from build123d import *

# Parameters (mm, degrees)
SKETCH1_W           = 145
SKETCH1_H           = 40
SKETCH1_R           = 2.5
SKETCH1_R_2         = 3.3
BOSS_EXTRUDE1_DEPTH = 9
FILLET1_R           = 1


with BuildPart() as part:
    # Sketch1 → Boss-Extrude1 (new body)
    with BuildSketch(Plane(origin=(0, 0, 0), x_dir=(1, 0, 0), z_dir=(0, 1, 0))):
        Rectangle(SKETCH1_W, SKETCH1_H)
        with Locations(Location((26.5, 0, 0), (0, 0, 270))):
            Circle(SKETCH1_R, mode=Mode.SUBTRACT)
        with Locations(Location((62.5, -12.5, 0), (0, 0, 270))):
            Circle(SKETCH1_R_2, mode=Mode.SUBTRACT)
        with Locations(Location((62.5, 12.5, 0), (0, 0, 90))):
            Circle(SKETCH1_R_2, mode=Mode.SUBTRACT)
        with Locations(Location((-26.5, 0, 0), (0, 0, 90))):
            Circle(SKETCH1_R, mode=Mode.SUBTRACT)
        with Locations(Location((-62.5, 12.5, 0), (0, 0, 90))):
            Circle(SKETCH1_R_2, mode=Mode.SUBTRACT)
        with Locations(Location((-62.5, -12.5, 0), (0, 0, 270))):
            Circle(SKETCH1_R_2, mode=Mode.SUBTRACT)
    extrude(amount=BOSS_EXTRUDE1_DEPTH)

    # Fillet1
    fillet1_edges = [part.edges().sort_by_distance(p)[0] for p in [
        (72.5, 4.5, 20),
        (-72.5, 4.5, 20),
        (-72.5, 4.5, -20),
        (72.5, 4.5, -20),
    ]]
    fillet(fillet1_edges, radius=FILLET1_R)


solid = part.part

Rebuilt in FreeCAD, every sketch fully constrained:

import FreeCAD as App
import Part
import Sketcher
from FreeCAD import Vector
Q = App.Units.Quantity


def edges_at(feature, points):
    """Names of the edges that pass closest to the given points."""
    edges = feature.Shape.Edges
    near = lambda p: min(range(len(edges)), key=lambda i: edges[i].distToShape(Part.Vertex(*p))[0])
    return sorted({f"Edge{near(p) + 1}" for p in points})


def add_polygon(sketch, points):
    """Adds a closed chain of lines whose ends are joined by coincident constraints."""
    first, n = sketch.GeometryCount, len(points)
    for a, b in zip(points, points[1:] + points[:1]):
        sketch.addGeometry(Part.LineSegment(App.Vector(*a, 0), App.Vector(*b, 0)), False)
    for i in range(n):
        sketch.addConstraint(Sketcher.Constraint("Coincident", first + i, 2, first + (i + 1) % n, 1))

doc = App.newDocument("Part")
params = doc.addObject("Spreadsheet::Sheet", "Params")
for row, (alias, value) in enumerate([
    ("sketch1_diameter", "5 mm"),
    ("sketch1_diameter2", "6.6 mm"),
    ("sketch1_width", "145 mm"),
    ("sketch1_height", "40 mm"),
    ("pad1_length", "9 mm"),
    ("fillet_radius", "1 mm"),
], start=1):
    params.set(f"A{row}", alias)
    params.set(f"B{row}", "=" + value)
    params.setAlias(f"B{row}", alias)

body = doc.addObject("PartDesign::Body", "Body")

# Sketch on XZ plane
sketch1 = body.newObject("Sketcher::SketchObject", "Sketch")
sketch1.AttachmentSupport = (doc.getObject("XZ_Plane"), [""])
sketch1.MapMode = "FlatFace"
add_polygon(sketch1, [(-72.5, -20), (-72.5, 20), (72.5, 20), (72.5, -20)])  # lines 0-3
sketch1.addGeometry(Part.Circle(Vector(-62.5, 12.5, 0), Vector(0, 0, 1), 3.3), False)  # 4
sketch1.addGeometry(Part.Circle(Vector(-26.5, 0, 0), Vector(0, 0, 1), 2.5), False)  # 5
sketch1.addGeometry(Part.Circle(Vector(62.5, 12.5, 0), Vector(0, 0, 1), 3.3), False)  # 6
sketch1.addGeometry(Part.Circle(Vector(26.5, 0, 0), Vector(0, 0, 1), 2.5), False)  # 7
sketch1.addGeometry(Part.Circle(Vector(-62.5, -12.5, 0), Vector(0, 0, 1), 3.3), False)  # 8
sketch1.addGeometry(Part.Circle(Vector(62.5, -12.5, 0), Vector(0, 0, 1), 3.3), False)  # 9
sketch1.addConstraint(Sketcher.Constraint("Vertical", 0))
sketch1.addConstraint(Sketcher.Constraint("Horizontal", 1))
sketch1.addConstraint(Sketcher.Constraint("Vertical", 2))
sketch1.addConstraint(Sketcher.Constraint("Horizontal", 3))
sketch1.addConstraint(Sketcher.Constraint("Equal", 4, 6))
sketch1.addConstraint(Sketcher.Constraint("Equal", 5, 7))
sketch1.addConstraint(Sketcher.Constraint("Equal", 6, 8))
sketch1.addConstraint(Sketcher.Constraint("Equal", 8, 9))
sketch1.addConstraint(Sketcher.Constraint("Symmetric", 5, 3, 7, 3, -1, 1))
sketch1.addConstraint(Sketcher.Constraint("Symmetric", 6, 3, 8, 3, -1, 1))
sketch1.addConstraint(Sketcher.Constraint("Symmetric", 4, 3, 9, 3, -1, 1))
sketch1.addConstraint(Sketcher.Constraint("Symmetric", 0, 2, 2, 2, -1, 1))
sketch1.addConstraint(Sketcher.Constraint("Symmetric", 4, 3, 6, 3, -2))
sketch1.addConstraint(Sketcher.Constraint("PointOnObject", 5, 3, -1))
sketch1.addConstraint(Sketcher.Constraint("Diameter", 5, Q("5 mm")))
sketch1.addConstraint(Sketcher.Constraint("Diameter", 4, Q("6.6 mm")))
sketch1.addConstraint(Sketcher.Constraint("DistanceX", 1, 1, 1, 2, Q("145 mm")))
sketch1.addConstraint(Sketcher.Constraint("DistanceY", 0, 1, 0, 2, Q("40 mm")))
sketch1.addConstraint(Sketcher.Constraint("DistanceX", 4, 3, 5, 3, Q("36 mm")))
sketch1.addConstraint(Sketcher.Constraint("DistanceX", 5, 3, 6, 3, Q("89 mm")))
sketch1.addConstraint(Sketcher.Constraint("DistanceY", 8, 3, 4, 3, Q("25 mm")))
sketch1.setExpression("Constraints[18]", "Params.sketch1_diameter")
sketch1.setExpression("Constraints[19]", "Params.sketch1_diameter2")
sketch1.setExpression("Constraints[20]", "Params.sketch1_width")
sketch1.setExpression("Constraints[21]", "Params.sketch1_height")
pad1 = body.newObject("PartDesign::Pad", "Pad")
pad1.Profile = sketch1
pad1.setExpression("Length", "Params.pad1_length")
pad1.Reversed = True
doc.recompute()

fillet = body.newObject("PartDesign::Fillet", "Fillet")
fillet.Base = (pad1, edges_at(pad1, [
    (72.5, 4.5, 20),
    (-72.5, 4.5, 20),
    (-72.5, 4.5, -20),
    (72.5, 4.5, -20),
]))
fillet.setExpression("Radius", "Params.fillet_radius")

doc.recompute()
